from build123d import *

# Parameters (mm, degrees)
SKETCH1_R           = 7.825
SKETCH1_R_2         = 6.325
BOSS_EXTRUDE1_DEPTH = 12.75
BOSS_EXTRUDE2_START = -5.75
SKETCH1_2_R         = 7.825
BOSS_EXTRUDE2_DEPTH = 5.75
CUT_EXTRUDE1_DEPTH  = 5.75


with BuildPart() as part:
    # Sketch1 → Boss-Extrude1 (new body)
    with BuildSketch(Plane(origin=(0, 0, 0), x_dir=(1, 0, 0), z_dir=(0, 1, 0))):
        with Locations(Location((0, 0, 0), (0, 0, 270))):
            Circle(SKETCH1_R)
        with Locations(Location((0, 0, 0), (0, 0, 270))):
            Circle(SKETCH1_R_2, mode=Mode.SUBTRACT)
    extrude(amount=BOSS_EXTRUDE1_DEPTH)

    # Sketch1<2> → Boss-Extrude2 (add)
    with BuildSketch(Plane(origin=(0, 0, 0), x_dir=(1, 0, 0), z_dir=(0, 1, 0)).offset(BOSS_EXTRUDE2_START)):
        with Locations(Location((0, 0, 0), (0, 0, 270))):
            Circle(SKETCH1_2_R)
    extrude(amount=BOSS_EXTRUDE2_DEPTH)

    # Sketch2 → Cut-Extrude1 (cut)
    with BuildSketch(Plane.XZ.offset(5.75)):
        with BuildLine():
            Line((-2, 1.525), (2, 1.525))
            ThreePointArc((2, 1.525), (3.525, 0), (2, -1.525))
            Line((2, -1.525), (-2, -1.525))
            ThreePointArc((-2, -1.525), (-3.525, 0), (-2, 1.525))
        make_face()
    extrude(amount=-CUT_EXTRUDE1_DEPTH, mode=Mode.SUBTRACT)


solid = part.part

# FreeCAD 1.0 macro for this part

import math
import FreeCAD as App
import Part
import Sketcher
from FreeCAD import Vector

doc = App.newDocument("Part")
body = doc.addObject("PartDesign::Body", "Body")

sketch1 = body.newObject("Sketcher::SketchObject", "Sketch")
sketch1.AttachmentSupport = (doc.getObject("XZ_Plane"), [""])
sketch1.MapMode = "FlatFace"
sketch1.addGeometry(Part.Circle(Vector(0, 0, 0), Vector(0, 0, 1), 8), False)
sketch1.addGeometry(Part.Circle(Vector(0, 0, 0), Vector(0, 0, 1), 6), False)
sketch1.addConstraint(Sketcher.Constraint("Coincident", 0, 3, -1, 1))
sketch1.addConstraint(Sketcher.Constraint("Coincident", 1, 3, -1, 1))
sketch1.addConstraint(Sketcher.Constraint("Diameter", 0, 15.65))
sketch1.addConstraint(Sketcher.Constraint("Diameter", 1, 12.65))
pad1 = body.newObject("PartDesign::Pad", "Pad")
pad1.Profile = sketch1
pad1.Length = 12.75
pad1.Reversed = True

sketch2 = body.newObject("Sketcher::SketchObject", "Sketch001")
sketch2.AttachmentSupport = (doc.getObject("XZ_Plane"), [""])
sketch2.MapMode = "FlatFace"
sketch2.AttachmentOffset = App.Placement(Vector(0, 0, 5.75), App.Rotation())
sketch2.addGeometry(Part.Circle(Vector(0, 0, 0), Vector(0, 0, 1), 8), False)
sketch2.addConstraint(Sketcher.Constraint("Coincident", 0, 3, -1, 1))
sketch2.addConstraint(Sketcher.Constraint("Diameter", 0, 15.65))
pad2 = body.newObject("PartDesign::Pad", "Pad001")
pad2.Profile = sketch2
pad2.Length = 5.75
pad2.Reversed = True

sketch3 = body.newObject("Sketcher::SketchObject", "Sketch002")
sketch3.AttachmentSupport = (doc.getObject("XZ_Plane"), [""])
sketch3.MapMode = "FlatFace"
sketch3.AttachmentOffset = App.Placement(Vector(0, 0, 5.75), App.Rotation())
sketch3.addGeometry(Part.LineSegment(Vector(2, 1.5, 0), Vector(-2, 1.5, 0)), False)
sketch3.addGeometry(Part.ArcOfCircle(Part.Circle(Vector(-2, 0, 0), Vector(0, 0, 1), 1.5), math.radians(90), math.radians(270)), False)
sketch3.addGeometry(Part.LineSegment(Vector(-2, -1.5, 0), Vector(2, -1.5, 0)), False)
sketch3.addGeometry(Part.ArcOfCircle(Part.Circle(Vector(2, 0, 0), Vector(0, 0, 1), 1.5), math.radians(-90), math.radians(90)), False)
sketch3.addConstraint(Sketcher.Constraint("Tangent", 0, 2, 1, 1))
sketch3.addConstraint(Sketcher.Constraint("Tangent", 1, 2, 2, 1))
sketch3.addConstraint(Sketcher.Constraint("Tangent", 2, 2, 3, 1))
sketch3.addConstraint(Sketcher.Constraint("Tangent", 3, 2, 0, 1))
sketch3.addConstraint(Sketcher.Constraint("Horizontal", 0))
sketch3.addConstraint(Sketcher.Constraint("Horizontal", 2))
sketch3.addConstraint(Sketcher.Constraint("Symmetric", 1, 3, 3, 3, -1, 1))
sketch3.addConstraint(Sketcher.Constraint("DistanceX", 0, 2, 0, 1, 4.0))
sketch3.addConstraint(Sketcher.Constraint("Radius", 1, 1.525))
pocket1 = body.newObject("PartDesign::Pocket", "Pocket")
pocket1.Profile = sketch3
pocket1.Length = 5.75

doc.recompute()
